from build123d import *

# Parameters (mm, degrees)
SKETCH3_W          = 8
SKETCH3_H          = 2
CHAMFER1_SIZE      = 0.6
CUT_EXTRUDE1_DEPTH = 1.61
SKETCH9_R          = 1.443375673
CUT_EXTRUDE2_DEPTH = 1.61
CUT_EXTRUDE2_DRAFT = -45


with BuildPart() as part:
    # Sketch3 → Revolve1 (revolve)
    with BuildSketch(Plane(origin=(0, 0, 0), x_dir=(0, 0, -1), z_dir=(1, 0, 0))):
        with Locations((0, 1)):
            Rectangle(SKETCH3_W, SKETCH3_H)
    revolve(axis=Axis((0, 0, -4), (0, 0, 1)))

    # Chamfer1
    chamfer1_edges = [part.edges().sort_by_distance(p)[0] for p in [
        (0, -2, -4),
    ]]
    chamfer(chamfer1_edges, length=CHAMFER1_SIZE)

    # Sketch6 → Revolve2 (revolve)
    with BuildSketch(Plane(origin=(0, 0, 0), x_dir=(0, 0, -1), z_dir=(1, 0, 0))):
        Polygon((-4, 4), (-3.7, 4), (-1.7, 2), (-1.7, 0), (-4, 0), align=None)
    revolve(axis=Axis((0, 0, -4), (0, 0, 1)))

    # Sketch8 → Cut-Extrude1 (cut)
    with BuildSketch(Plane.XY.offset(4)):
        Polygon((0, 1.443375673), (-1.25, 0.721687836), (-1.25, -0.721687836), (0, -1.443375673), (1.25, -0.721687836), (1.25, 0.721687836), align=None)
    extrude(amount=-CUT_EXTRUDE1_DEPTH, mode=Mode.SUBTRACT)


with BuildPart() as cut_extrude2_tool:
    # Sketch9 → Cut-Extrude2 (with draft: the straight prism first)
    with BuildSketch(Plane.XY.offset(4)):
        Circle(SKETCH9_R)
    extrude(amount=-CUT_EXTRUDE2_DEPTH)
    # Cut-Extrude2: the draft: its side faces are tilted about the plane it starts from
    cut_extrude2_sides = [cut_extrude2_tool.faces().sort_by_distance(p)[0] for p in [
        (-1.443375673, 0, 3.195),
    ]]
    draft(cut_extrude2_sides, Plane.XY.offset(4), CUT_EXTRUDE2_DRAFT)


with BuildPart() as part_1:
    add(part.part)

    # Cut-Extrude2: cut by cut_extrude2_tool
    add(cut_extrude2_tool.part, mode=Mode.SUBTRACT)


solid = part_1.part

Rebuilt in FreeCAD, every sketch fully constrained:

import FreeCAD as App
import Part
import Sketcher

V = App.Vector
Q = App.Units.Quantity


def edges_at(feature, points):
    """Names of the edges that pass closest to the given points."""
    edges = feature.Shape.Edges
    near = lambda p: min(range(len(edges)), key=lambda i: edges[i].distToShape(Part.Vertex(*p))[0])
    return sorted({f"Edge{near(p) + 1}" for p in points})


def faces_at(feature, points):
    """Names of the faces that lie closest to the given points."""
    faces = feature.Shape.Faces
    near = lambda p: min(range(len(faces)), key=lambda i: faces[i].distToShape(Part.Vertex(*p))[0])
    return sorted({f"Face{near(p) + 1}" for p in points})


def add_polygon(sketch, points):
    """Adds a closed chain of lines whose ends are joined by coincident constraints."""
    first, n = sketch.GeometryCount, len(points)
    for a, b in zip(points, points[1:] + points[:1]):
        sketch.addGeometry(Part.LineSegment(App.Vector(*a, 0), App.Vector(*b, 0)), False)
    for i in range(n):
        sketch.addConstraint(Sketcher.Constraint("Coincident", first + i, 2, first + (i + 1) % n, 1))

doc = App.newDocument("Part")
params = doc.addObject("Spreadsheet::Sheet", "Params")
for row, (alias, value) in enumerate([
    ("sketch1_width", "2 mm"),
    ("sketch1_height", "8 mm"),
    ("revolution_angle", "360 deg"),
    ("chamfer_size", "0.6 mm"),
    ("sketch2_width", "4 mm"),
    ("sketch2_width2", "2 mm"),
    ("sketch2_height", "0.3 mm"),
    ("revolution2_angle", "360 deg"),
    ("pocket1_length", "1.61 mm"),
    ("pad1_length", "1.61 mm"),
    ("draft_angle", "45 deg"),
], start=1):
    params.set(f"A{row}", alias)
    params.set(f"B{row}", "=" + value)
    params.setAlias(f"B{row}", alias)

body = doc.addObject("PartDesign::Body", "Body")

# Sketch on YZ plane
sketch1 = body.newObject("Sketcher::SketchObject", "Sketch")
sketch1.AttachmentSupport = (doc.getObject("YZ_Plane"), [""])
sketch1.MapMode = "FlatFace"
add_polygon(sketch1, [(2, 4), (0, 4), (0, -4), (2, -4)])  # lines 0-3
sketch1.addConstraint(Sketcher.Constraint("Horizontal", 0))
sketch1.addConstraint(Sketcher.Constraint("Vertical", 1))
sketch1.addConstraint(Sketcher.Constraint("Horizontal", 2))
sketch1.addConstraint(Sketcher.Constraint("Vertical", 3))
sketch1.addConstraint(Sketcher.Constraint("Symmetric", 0, 2, 1, 2, -1, 1))
sketch1.addConstraint(Sketcher.Constraint("DistanceX", 0, 2, 0, 1, Q("2 mm")))
sketch1.addConstraint(Sketcher.Constraint("DistanceY", 1, 2, 1, 1, Q("8 mm")))
sketch1.setExpression("Constraints[9]", "Params.sketch1_width")
sketch1.setExpression("Constraints[10]", "Params.sketch1_height")
revolution = body.newObject("PartDesign::Revolution", "Revolution")
revolution.Profile = sketch1
revolution.ReferenceAxis = (sketch1, ["V_Axis"])
revolution.setExpression("Angle", "Params.revolution_angle")
doc.recompute()

chamfer = body.newObject("PartDesign::Chamfer", "Chamfer")
chamfer.Base = (revolution, edges_at(revolution, [(0, -2, -4)]))
chamfer.setExpression("Size", "Params.chamfer_size")

# Sketch on YZ plane
sketch2 = body.newObject("Sketcher::SketchObject", "Sketch001")
sketch2.AttachmentSupport = (doc.getObject("YZ_Plane"), [""])
sketch2.MapMode = "FlatFace"
add_polygon(sketch2, [(4, 3.7), (4, 4), (0, 4), (0, 1.7), (2, 1.7)])  # lines 0-4
sketch2.addConstraint(Sketcher.Constraint("Vertical", 0))
sketch2.addConstraint(Sketcher.Constraint("Horizontal", 1))
sketch2.addConstraint(Sketcher.Constraint("Vertical", 2))
sketch2.addConstraint(Sketcher.Constraint("Horizontal", 3))
sketch2.addConstraint(Sketcher.Constraint("PointOnObject", 1, 2, -2))
sketch2.addConstraint(Sketcher.Constraint("DistanceX", 1, 2, 1, 1, Q("4 mm")))
sketch2.addConstraint(Sketcher.Constraint("DistanceX", 3, 1, 3, 2, Q("2 mm")))
sketch2.addConstraint(Sketcher.Constraint("Angle", 4, Q("45 deg")))
sketch2.addConstraint(Sketcher.Constraint("DistanceY", 0, 1, 0, 2, Q("0.3 mm")))
sketch2.addConstraint(Sketcher.Constraint("DistanceY", -1, 1, 0, 2, Q("4 mm")))
sketch2.setExpression("Constraints[10]", "Params.sketch2_width")
sketch2.setExpression("Constraints[11]", "Params.sketch2_width2")
sketch2.setExpression("Constraints[13]", "Params.sketch2_height")
revolution2 = body.newObject("PartDesign::Revolution", "Revolution001")
revolution2.Profile = sketch2
revolution2.ReferenceAxis = (sketch2, ["V_Axis"])
revolution2.setExpression("Angle", "Params.revolution2_angle")

# Sketch on XY plane
sketch3 = body.newObject("Sketcher::SketchObject", "Sketch002")
sketch3.AttachmentSupport = (doc.getObject("XY_Plane"), [""])
sketch3.MapMode = "FlatFace"
sketch3.AttachmentOffset = App.Placement(V(0, 0, 4), App.Rotation())
add_polygon(sketch3, [(0, 1.4), (-1.2, 0.7), (-1.2, -0.7), (0, -1.4), (1.2, -0.7), (1.2, 0.7)])  # lines 0-5
sketch3.addConstraint(Sketcher.Constraint("Vertical", 1))
sketch3.addConstraint(Sketcher.Constraint("Vertical", 4))
sketch3.addConstraint(Sketcher.Constraint("Symmetric", 0, 2, 3, 2, -1, 1))
sketch3.addConstraint(Sketcher.Constraint("Symmetric", 2, 2, 5, 2, -1, 1))
sketch3.addConstraint(Sketcher.Constraint("PointOnObject", 2, 2, -2))
sketch3.addConstraint(Sketcher.Constraint("Parallel", 2, 5))
sketch3.addConstraint(Sketcher.Constraint("Horizontal", 1, 2, 3, 2))
sketch3.addConstraint(Sketcher.Constraint("Angle", 0, Q("-150 deg")))
sketch3.addConstraint(Sketcher.Constraint("DistanceX", 1, 2, 3, 2, Q("2.5 mm")))
sketch3.addConstraint(Sketcher.Constraint("DistanceY", 1, 2, 1, 1, Q("1.443376 mm")))
pocket1 = body.newObject("PartDesign::Pocket", "Pocket")
pocket1.Profile = sketch3
pocket1.setExpression("Length", "Params.pocket1_length")
body2 = doc.addObject("PartDesign::Body", "Body001")

# Sketch on XY plane
sketch4 = body2.newObject("Sketcher::SketchObject", "Sketch003")
sketch4.AttachmentSupport = (doc.getObject("XY_Plane001"), [""])
sketch4.MapMode = "FlatFace"
sketch4.AttachmentOffset = App.Placement(V(0, 0, 4), App.Rotation())
sketch4.addGeometry(Part.Circle(V(0, 0, 0), V(0, 0, 1), 1.4), False)
sketch4.addConstraint(Sketcher.Constraint("Coincident", 0, 3, -1, 1))
sketch4.addConstraint(Sketcher.Constraint("Diameter", 0, Q("2.886751 mm")))
pad1 = body2.newObject("PartDesign::Pad", "Pad")
pad1.Profile = sketch4
pad1.setExpression("Length", "Params.pad1_length")
pad1.Reversed = True
doc.recompute()

datumplane = body2.newObject("PartDesign::Plane", "DatumPlane")
datumplane.AttachmentSupport = (doc.getObject("XY_Plane001"), [""])
datumplane.MapMode = "FlatFace"
datumplane.AttachmentOffset = App.Placement(V(0, 0, 4), App.Rotation())
draft = body2.newObject("PartDesign::Draft", "Draft")
draft.Base = (pad1, faces_at(pad1, [(-1.443, 0, 3.195)]))
draft.NeutralPlane = (datumplane, [""])
draft.setExpression("Angle", "Params.draft_angle")
draft.Reversed = True
doc.recompute()

boolean = body.newObject("PartDesign::Boolean", "Boolean")
boolean.Type = "Cut"
boolean.addObjects([body2])

doc.recompute()
